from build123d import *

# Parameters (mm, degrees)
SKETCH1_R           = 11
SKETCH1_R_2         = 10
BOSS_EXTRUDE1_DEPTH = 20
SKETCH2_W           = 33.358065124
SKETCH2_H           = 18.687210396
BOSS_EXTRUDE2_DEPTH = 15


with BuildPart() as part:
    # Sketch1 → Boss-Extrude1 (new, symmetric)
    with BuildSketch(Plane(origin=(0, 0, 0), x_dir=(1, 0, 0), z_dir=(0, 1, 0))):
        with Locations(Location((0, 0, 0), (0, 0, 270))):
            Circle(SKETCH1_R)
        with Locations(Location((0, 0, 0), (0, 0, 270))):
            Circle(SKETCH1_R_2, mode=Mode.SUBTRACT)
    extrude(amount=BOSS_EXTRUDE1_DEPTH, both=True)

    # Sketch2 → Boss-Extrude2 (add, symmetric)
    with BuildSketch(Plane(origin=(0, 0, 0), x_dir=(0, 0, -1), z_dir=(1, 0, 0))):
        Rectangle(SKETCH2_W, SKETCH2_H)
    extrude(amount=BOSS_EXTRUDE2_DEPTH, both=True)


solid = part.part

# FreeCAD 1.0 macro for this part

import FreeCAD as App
import Part
import Sketcher
from FreeCAD import Vector


def add_polygon(sketch, points):
    """Adds a closed chain of lines whose ends are joined by coincident constraints."""
    first, n = sketch.GeometryCount, len(points)
    for a, b in zip(points, points[1:] + points[:1]):
        sketch.addGeometry(Part.LineSegment(App.Vector(*a, 0), App.Vector(*b, 0)), False)
    for i in range(n):
        sketch.addConstraint(Sketcher.Constraint("Coincident", first + i, 2, first + (i + 1) % n, 1))

doc = App.newDocument("Part")
body = doc.addObject("PartDesign::Body", "Body")

sketch1 = body.newObject("Sketcher::SketchObject", "Sketch")
sketch1.AttachmentSupport = (doc.getObject("XZ_Plane"), [""])
sketch1.MapMode = "FlatFace"
sketch1.addGeometry(Part.Circle(Vector(0, 0, 0), Vector(0, 0, 1), 11), False)
sketch1.addGeometry(Part.Circle(Vector(0, 0, 0), Vector(0, 0, 1), 10), False)
sketch1.addConstraint(Sketcher.Constraint("Coincident", 0, 3, -1, 1))
sketch1.addConstraint(Sketcher.Constraint("Coincident", 1, 3, -1, 1))
sketch1.addConstraint(Sketcher.Constraint("Diameter", 0, 22.0))
sketch1.addConstraint(Sketcher.Constraint("Diameter", 1, 20.0))
pad1 = body.newObject("PartDesign::Pad", "Pad")
pad1.Profile = sketch1
pad1.Length = 40
pad1.Midplane = True

sketch2 = body.newObject("Sketcher::SketchObject", "Sketch001")
sketch2.AttachmentSupport = (doc.getObject("YZ_Plane"), [""])
sketch2.MapMode = "FlatFace"
add_polygon(sketch2, [(9, 17), (-9, 17), (-9, -17), (9, -17)])
sketch2.addConstraint(Sketcher.Constraint("Horizontal", 0))
sketch2.addConstraint(Sketcher.Constraint("Vertical", 1))
sketch2.addConstraint(Sketcher.Constraint("Horizontal", 2))
sketch2.addConstraint(Sketcher.Constraint("Vertical", 3))
sketch2.addConstraint(Sketcher.Constraint("Symmetric", 0, 2, 2, 2, -1, 1))
sketch2.addConstraint(Sketcher.Constraint("DistanceX", 0, 2, 0, 1, 18.68721))
sketch2.addConstraint(Sketcher.Constraint("DistanceY", 1, 2, 1, 1, 33.358065))
pad2 = body.newObject("PartDesign::Pad", "Pad001")
pad2.Profile = sketch2
pad2.Length = 30
pad2.Midplane = True

doc.recompute()
